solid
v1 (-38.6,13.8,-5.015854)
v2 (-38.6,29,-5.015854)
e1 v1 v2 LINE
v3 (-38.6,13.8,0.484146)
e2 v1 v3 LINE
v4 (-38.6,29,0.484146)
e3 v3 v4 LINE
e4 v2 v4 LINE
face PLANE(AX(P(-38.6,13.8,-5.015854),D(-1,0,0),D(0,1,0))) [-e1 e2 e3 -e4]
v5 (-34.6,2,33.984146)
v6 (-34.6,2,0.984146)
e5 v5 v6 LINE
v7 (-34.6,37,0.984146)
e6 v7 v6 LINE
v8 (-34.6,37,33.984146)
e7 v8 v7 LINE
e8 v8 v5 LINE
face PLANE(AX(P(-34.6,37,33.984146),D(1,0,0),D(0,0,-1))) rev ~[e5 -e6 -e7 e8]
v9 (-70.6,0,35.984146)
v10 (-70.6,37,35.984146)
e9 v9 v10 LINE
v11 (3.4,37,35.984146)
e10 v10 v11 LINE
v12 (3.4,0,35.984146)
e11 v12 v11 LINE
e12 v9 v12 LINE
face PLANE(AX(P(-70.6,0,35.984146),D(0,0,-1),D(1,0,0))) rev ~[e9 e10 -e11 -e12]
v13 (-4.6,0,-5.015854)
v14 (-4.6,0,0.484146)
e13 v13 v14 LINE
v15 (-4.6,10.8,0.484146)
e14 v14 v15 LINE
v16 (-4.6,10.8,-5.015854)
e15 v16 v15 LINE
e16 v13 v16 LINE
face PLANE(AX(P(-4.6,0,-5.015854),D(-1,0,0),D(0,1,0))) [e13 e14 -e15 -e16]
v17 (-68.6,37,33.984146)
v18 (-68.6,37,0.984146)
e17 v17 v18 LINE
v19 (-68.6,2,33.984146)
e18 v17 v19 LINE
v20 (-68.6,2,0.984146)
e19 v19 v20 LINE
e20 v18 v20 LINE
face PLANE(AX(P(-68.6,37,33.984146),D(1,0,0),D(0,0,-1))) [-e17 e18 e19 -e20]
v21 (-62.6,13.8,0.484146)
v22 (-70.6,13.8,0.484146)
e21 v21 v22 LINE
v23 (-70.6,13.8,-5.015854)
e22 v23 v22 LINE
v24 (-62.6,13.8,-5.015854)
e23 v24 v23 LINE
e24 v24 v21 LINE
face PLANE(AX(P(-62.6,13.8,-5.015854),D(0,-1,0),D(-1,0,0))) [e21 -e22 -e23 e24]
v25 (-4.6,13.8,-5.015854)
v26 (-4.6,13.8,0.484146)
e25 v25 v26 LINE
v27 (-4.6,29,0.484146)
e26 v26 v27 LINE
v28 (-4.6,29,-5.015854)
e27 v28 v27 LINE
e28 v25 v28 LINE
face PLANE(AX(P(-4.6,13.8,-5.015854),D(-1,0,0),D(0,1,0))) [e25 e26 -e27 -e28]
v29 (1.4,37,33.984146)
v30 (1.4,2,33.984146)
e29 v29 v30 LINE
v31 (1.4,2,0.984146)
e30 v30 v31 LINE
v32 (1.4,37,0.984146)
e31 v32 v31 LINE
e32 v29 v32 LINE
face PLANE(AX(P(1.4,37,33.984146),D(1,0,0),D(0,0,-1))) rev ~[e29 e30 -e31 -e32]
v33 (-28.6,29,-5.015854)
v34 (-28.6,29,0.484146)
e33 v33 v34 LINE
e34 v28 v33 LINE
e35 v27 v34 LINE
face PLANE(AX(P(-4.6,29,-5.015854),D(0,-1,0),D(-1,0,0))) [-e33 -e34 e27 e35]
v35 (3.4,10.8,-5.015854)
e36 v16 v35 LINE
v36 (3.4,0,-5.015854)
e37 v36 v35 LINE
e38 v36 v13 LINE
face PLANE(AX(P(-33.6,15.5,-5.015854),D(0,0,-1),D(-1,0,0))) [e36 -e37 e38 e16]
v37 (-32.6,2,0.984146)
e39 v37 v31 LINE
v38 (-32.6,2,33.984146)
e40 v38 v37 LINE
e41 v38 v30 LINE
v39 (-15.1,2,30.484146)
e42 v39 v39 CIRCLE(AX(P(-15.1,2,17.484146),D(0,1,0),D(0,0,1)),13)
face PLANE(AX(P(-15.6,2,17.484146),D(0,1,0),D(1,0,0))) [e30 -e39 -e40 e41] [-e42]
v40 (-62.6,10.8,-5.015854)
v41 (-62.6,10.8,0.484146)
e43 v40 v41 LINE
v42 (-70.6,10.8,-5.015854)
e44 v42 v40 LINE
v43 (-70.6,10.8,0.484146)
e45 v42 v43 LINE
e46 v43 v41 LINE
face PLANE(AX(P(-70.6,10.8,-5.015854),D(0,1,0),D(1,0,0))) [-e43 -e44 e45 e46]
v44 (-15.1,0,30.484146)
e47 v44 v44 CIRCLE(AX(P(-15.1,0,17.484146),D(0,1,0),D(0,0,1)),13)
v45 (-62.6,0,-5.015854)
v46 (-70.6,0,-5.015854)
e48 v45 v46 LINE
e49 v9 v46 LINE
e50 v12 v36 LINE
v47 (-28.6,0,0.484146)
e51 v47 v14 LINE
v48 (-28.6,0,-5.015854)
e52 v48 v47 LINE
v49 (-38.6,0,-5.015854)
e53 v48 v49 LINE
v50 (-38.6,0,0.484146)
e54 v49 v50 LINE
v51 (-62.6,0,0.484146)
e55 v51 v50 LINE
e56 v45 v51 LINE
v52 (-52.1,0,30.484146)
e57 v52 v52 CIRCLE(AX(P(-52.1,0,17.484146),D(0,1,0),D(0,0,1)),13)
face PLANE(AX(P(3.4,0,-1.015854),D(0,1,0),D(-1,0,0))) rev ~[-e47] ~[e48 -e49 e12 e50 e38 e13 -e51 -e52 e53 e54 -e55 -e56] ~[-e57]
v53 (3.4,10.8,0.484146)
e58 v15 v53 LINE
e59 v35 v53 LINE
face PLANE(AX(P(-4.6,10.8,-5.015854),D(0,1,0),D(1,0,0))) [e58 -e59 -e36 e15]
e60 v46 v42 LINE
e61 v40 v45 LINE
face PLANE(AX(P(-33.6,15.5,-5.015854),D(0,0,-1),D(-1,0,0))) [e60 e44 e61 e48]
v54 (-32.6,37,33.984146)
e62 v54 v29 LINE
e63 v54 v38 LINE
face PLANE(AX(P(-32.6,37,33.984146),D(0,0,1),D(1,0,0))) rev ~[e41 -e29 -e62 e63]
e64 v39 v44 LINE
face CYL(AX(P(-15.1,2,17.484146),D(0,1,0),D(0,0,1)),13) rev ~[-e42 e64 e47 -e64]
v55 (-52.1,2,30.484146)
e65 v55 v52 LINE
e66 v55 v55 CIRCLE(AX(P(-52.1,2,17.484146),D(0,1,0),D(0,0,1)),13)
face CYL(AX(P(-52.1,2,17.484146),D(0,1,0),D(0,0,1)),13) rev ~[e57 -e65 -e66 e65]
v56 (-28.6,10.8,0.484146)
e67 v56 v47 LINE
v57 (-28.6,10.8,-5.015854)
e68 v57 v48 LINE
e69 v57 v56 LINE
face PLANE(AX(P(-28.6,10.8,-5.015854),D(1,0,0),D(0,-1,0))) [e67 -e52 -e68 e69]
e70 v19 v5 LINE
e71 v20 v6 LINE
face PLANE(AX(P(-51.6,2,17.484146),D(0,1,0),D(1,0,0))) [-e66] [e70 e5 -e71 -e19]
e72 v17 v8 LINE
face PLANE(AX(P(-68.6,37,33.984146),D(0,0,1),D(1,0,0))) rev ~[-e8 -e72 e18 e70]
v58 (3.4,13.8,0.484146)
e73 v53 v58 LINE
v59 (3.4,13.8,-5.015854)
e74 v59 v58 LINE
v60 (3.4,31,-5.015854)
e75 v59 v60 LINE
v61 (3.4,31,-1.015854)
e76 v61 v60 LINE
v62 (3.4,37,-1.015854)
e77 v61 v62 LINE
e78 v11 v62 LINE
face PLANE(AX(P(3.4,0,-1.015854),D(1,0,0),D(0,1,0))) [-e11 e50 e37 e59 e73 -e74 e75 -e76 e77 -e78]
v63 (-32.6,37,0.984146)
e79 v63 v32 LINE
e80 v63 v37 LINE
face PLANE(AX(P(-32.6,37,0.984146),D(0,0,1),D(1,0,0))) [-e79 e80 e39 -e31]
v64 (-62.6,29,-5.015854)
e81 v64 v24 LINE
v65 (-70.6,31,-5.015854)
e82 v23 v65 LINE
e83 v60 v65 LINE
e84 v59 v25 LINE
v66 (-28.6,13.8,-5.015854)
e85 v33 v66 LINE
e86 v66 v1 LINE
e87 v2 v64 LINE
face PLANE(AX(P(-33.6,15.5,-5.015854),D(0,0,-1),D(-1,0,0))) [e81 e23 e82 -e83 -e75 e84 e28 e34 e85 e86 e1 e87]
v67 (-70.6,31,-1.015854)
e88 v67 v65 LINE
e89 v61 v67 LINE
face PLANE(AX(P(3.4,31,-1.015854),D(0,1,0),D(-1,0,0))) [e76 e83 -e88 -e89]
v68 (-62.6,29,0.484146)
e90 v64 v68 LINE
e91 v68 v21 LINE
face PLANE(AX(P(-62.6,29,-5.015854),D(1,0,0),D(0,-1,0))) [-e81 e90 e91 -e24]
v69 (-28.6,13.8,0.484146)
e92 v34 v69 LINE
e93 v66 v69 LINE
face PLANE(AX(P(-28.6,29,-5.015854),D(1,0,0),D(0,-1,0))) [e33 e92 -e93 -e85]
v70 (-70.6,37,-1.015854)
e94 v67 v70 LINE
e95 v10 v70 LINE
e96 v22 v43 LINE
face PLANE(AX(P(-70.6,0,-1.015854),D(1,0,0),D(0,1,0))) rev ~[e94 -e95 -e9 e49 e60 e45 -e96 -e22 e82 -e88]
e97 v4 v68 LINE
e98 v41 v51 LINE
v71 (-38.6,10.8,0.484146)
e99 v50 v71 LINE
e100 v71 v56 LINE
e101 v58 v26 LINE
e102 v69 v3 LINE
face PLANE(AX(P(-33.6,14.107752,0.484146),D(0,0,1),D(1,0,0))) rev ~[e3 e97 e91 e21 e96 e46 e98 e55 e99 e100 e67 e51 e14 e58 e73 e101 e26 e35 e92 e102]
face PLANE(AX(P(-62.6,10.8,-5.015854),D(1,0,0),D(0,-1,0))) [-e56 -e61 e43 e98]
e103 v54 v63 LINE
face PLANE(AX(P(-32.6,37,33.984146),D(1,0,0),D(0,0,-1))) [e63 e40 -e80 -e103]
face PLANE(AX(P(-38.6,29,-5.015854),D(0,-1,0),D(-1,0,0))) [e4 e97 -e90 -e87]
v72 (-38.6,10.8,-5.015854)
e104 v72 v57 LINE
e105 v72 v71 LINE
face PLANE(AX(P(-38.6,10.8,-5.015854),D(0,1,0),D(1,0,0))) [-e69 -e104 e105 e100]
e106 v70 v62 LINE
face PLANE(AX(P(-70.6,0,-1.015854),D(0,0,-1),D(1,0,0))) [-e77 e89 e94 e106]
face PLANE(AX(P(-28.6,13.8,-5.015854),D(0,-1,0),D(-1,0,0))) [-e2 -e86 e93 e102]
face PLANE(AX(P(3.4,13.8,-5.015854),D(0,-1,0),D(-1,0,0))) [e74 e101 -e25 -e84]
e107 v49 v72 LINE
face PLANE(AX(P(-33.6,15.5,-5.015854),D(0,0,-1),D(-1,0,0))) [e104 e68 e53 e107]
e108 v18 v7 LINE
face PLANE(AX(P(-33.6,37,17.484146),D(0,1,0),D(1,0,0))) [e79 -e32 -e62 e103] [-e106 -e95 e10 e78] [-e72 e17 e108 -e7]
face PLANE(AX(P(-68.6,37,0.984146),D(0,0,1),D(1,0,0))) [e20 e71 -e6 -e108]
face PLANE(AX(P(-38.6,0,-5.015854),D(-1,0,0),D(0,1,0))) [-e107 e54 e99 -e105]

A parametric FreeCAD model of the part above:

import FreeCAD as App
import Part
import Sketcher


def add_polygon(sketch, points):
    """Adds a closed chain of lines whose ends are joined by coincident constraints."""
    first, n = sketch.GeometryCount, len(points)
    for a, b in zip(points, points[1:] + points[:1]):
        sketch.addGeometry(Part.LineSegment(App.Vector(*a, 0), App.Vector(*b, 0)), False)
    for i in range(n):
        sketch.addConstraint(Sketcher.Constraint("Coincident", first + i, 2, first + (i + 1) % n, 1))

doc = App.newDocument("Part")
body = doc.addObject("PartDesign::Body", "Body")

# Sketch on XZ plane
sketch1 = body.newObject("Sketcher::SketchObject", "Sketch")
sketch1.AttachmentSupport = (doc.getObject("XZ_Plane"), [""])
sketch1.MapMode = "FlatFace"
add_polygon(sketch1, [(-70.6, -1.015854), (-70.6, 35.984146), (3.4, 35.984146), (3.4, -1.015854)])  # lines 0-3
sketch1.addConstraint(Sketcher.Constraint("Vertical", 0))
sketch1.addConstraint(Sketcher.Constraint("Horizontal", 1))
sketch1.addConstraint(Sketcher.Constraint("Vertical", 2))
sketch1.addConstraint(Sketcher.Constraint("Horizontal", 3))
sketch1.addConstraint(Sketcher.Constraint("DistanceX", 1, 1, 1, 2, 74.0))
sketch1.addConstraint(Sketcher.Constraint("DistanceY", 0, 1, 0, 2, 37.0))
sketch1.addConstraint(Sketcher.Constraint("DistanceX", 0, 2, -1, 1, 70.6))
sketch1.addConstraint(Sketcher.Constraint("DistanceY", -1, 1, 0, 2, 35.984146))
pad1 = body.newObject("PartDesign::Pad", "Pad")
pad1.Profile = sketch1
pad1.Length = 37
pad1.Reversed = True

# Sketch on XZ plane
sketch2 = body.newObject("Sketcher::SketchObject", "Sketch001")
sketch2.AttachmentSupport = (doc.getObject("XZ_Plane"), [""])
sketch2.MapMode = "FlatFace"
sketch2.AttachmentOffset = App.Placement(App.Vector(0, 0, -37), App.Rotation())
add_polygon(sketch2, [(-68.6, 0.984146), (-68.6, 33.984146), (-34.6, 33.984146), (-34.6, 0.984146)])  # lines 0-3
add_polygon(sketch2, [(-32.6, 0.984146), (-32.6, 33.984146), (1.4, 33.984146), (1.4, 0.984146)])  # lines 4-7
sketch2.addConstraint(Sketcher.Constraint("Vertical", 0))
sketch2.addConstraint(Sketcher.Constraint("Horizontal", 1))
sketch2.addConstraint(Sketcher.Constraint("Vertical", 2))
sketch2.addConstraint(Sketcher.Constraint("Horizontal", 3))
sketch2.addConstraint(Sketcher.Constraint("Vertical", 4))
sketch2.addConstraint(Sketcher.Constraint("Horizontal", 5))
sketch2.addConstraint(Sketcher.Constraint("Vertical", 6))
sketch2.addConstraint(Sketcher.Constraint("Horizontal", 7))
sketch2.addConstraint(Sketcher.Constraint("Horizontal", 1, 2, 4, 2))
sketch2.addConstraint(Sketcher.Constraint("Horizontal", 3, 2, 6, 2))
sketch2.addConstraint(Sketcher.Constraint("Equal", 3, 5))
sketch2.addConstraint(Sketcher.Constraint("DistanceX", 1, 1, 1, 2, 34.0))
sketch2.addConstraint(Sketcher.Constraint("DistanceY", 0, 1, 0, 2, 33.0))
sketch2.addConstraint(Sketcher.Constraint("DistanceX", 1, 2, 4, 2, 2.0))
sketch2.addConstraint(Sketcher.Constraint("DistanceX", 0, 2, -1, 1, 68.6))
sketch2.addConstraint(Sketcher.Constraint("DistanceY", -1, 1, 0, 2, 33.984146))
pocket1 = body.newObject("PartDesign::Pocket", "Pocket")
pocket1.Profile = sketch2
pocket1.Length = 35
pocket1.Reversed = True

# Sketch on XZ plane
sketch3 = body.newObject("Sketcher::SketchObject", "Sketch002")
sketch3.AttachmentSupport = (doc.getObject("XZ_Plane"), [""])
sketch3.MapMode = "FlatFace"
sketch3.AttachmentOffset = App.Placement(App.Vector(0, 0, -2), App.Rotation())
sketch3.addGeometry(Part.Circle(App.Vector(-15.1, 17.484146, 0), App.Vector(0, 0, 1), 13), False)
sketch3.addGeometry(Part.Circle(App.Vector(-52.1, 17.484146, 0), App.Vector(0, 0, 1), 13), False)
sketch3.addConstraint(Sketcher.Constraint("Equal", 0, 1))
sketch3.addConstraint(Sketcher.Constraint("Horizontal", 0, 3, 1, 3))
sketch3.addConstraint(Sketcher.Constraint("Diameter", 0, 26.0))
sketch3.addConstraint(Sketcher.Constraint("DistanceX", 1, 3, 0, 3, 37.0))
sketch3.addConstraint(Sketcher.Constraint("DistanceX", 0, 3, -1, 1, 15.1))
sketch3.addConstraint(Sketcher.Constraint("DistanceY", -1, 1, 0, 3, 17.484146))
pocket2 = body.newObject("PartDesign::Pocket", "Pocket001")
pocket2.Profile = sketch3
pocket2.Length = 3.5
pocket2.Reversed = True

# Sketch on XY plane
sketch4 = body.newObject("Sketcher::SketchObject", "Sketch003")
sketch4.AttachmentSupport = (doc.getObject("XY_Plane"), [""])
sketch4.MapMode = "FlatFace"
sketch4.AttachmentOffset = App.Placement(App.Vector(0, 0, -1.015854), App.Rotation())
add_polygon(sketch4, [(3.4, 31), (3.4, 0), (-70.6, 0), (-70.6, 31)])  # lines 0-3
sketch4.addConstraint(Sketcher.Constraint("Vertical", 0))
sketch4.addConstraint(Sketcher.Constraint("Horizontal", 1))
sketch4.addConstraint(Sketcher.Constraint("Vertical", 2))
sketch4.addConstraint(Sketcher.Constraint("Horizontal", 3))
sketch4.addConstraint(Sketcher.Constraint("PointOnObject", 0, 2, -1))
sketch4.addConstraint(Sketcher.Constraint("DistanceX", 1, 2, 1, 1, 74.0))
sketch4.addConstraint(Sketcher.Constraint("DistanceY", 0, 2, 0, 1, 31.0))
sketch4.addConstraint(Sketcher.Constraint("DistanceX", -1, 1, 0, 2, 3.4))
pad2 = body.newObject("PartDesign::Pad", "Pad001")
pad2.Profile = sketch4
pad2.Length = 4
pad2.Reversed = True

# Sketch on XY plane
sketch5 = body.newObject("Sketcher::SketchObject", "Sketch004")
sketch5.AttachmentSupport = (doc.getObject("XY_Plane"), [""])
sketch5.MapMode = "FlatFace"
sketch5.AttachmentOffset = App.Placement(App.Vector(0, 0, -5.015854), App.Rotation())
add_polygon(sketch5, [(-28.6, 29), (-4.6, 29), (-4.6, 13.8), (3.4, 13.8), (3.4, 10.8), (-4.6, 10.8), (-4.6, 0), (-28.6, 0), (-28.6, 10.8), (-38.6, 10.8), (-38.6, 0), (-62.6, 0), (-62.6, 10.8), (-70.6, 10.8), (-70.6, 13.8), (-62.6, 13.8), (-62.6, 29), (-38.6, 29), (-38.6, 13.8), (-28.6, 13.8)])  # lines 0-19
sketch5.addConstraint(Sketcher.Constraint("Horizontal", 0))
sketch5.addConstraint(Sketcher.Constraint("Vertical", 1))
sketch5.addConstraint(Sketcher.Constraint("Horizontal", 2))
sketch5.addConstraint(Sketcher.Constraint("Vertical", 3))
sketch5.addConstraint(Sketcher.Constraint("Horizontal", 4))
sketch5.addConstraint(Sketcher.Constraint("Vertical", 5))
sketch5.addConstraint(Sketcher.Constraint("Horizontal", 6))
sketch5.addConstraint(Sketcher.Constraint("Vertical", 7))
sketch5.addConstraint(Sketcher.Constraint("Horizontal", 8))
sketch5.addConstraint(Sketcher.Constraint("Vertical", 9))
sketch5.addConstraint(Sketcher.Constraint("Horizontal", 10))
sketch5.addConstraint(Sketcher.Constraint("Vertical", 11))
sketch5.addConstraint(Sketcher.Constraint("Horizontal", 12))
sketch5.addConstraint(Sketcher.Constraint("Vertical", 13))
sketch5.addConstraint(Sketcher.Constraint("Horizontal", 14))
sketch5.addConstraint(Sketcher.Constraint("Vertical", 15))
sketch5.addConstraint(Sketcher.Constraint("Horizontal", 16))
sketch5.addConstraint(Sketcher.Constraint("Vertical", 17))
sketch5.addConstraint(Sketcher.Constraint("Horizontal", 18))
sketch5.addConstraint(Sketcher.Constraint("Vertical", 19))
sketch5.addConstraint(Sketcher.Constraint("PointOnObject", 5, 2, -1))
sketch5.addConstraint(Sketcher.Constraint("PointOnObject", 9, 2, -1))
sketch5.addConstraint(Sketcher.Constraint("Horizontal", 4, 2, 7, 2))
sketch5.addConstraint(Sketcher.Constraint("Horizontal", 8, 2, 11, 2))
sketch5.addConstraint(Sketcher.Constraint("Horizontal", 2, 2, 13, 2))
sketch5.addConstraint(Sketcher.Constraint("Horizontal", 0, 2, 15, 2))
sketch5.addConstraint(Sketcher.Constraint("Horizontal", 14, 2, 17, 2))
sketch5.addConstraint(Sketcher.Constraint("Vertical", 1, 2, 4, 2))
sketch5.addConstraint(Sketcher.Constraint("Vertical", 11, 2, 14, 2))
sketch5.addConstraint(Sketcher.Constraint("Vertical", 9, 2, 16, 2))
sketch5.addConstraint(Sketcher.Constraint("Vertical", 7, 2, 18, 2))
sketch5.addConstraint(Sketcher.Constraint("Equal", 6, 10))
sketch5.addConstraint(Sketcher.Constraint("Equal", 4, 12))
sketch5.addConstraint(Sketcher.Constraint("DistanceX", 0, 1, 0, 2, 24.0))
sketch5.addConstraint(Sketcher.Constraint("DistanceX", 2, 1, 2, 2, 8.0))
sketch5.addConstraint(Sketcher.Constraint("DistanceX", 8, 2, 8, 1, 10.0))
sketch5.addConstraint(Sketcher.Constraint("DistanceY", 3, 2, 3, 1, 3.0))
sketch5.addConstraint(Sketcher.Constraint("DistanceY", 1, 2, 1, 1, 15.2))
sketch5.addConstraint(Sketcher.Constraint("DistanceY", 5, 2, 5, 1, 10.8))
sketch5.addConstraint(Sketcher.Constraint("DistanceX", 0, 2, -1, 1, 4.6))
pocket3 = body.newObject("PartDesign::Pocket", "Pocket002")
pocket3.Profile = sketch5
pocket3.Length = 5.5
pocket3.Reversed = True

doc.recompute()
